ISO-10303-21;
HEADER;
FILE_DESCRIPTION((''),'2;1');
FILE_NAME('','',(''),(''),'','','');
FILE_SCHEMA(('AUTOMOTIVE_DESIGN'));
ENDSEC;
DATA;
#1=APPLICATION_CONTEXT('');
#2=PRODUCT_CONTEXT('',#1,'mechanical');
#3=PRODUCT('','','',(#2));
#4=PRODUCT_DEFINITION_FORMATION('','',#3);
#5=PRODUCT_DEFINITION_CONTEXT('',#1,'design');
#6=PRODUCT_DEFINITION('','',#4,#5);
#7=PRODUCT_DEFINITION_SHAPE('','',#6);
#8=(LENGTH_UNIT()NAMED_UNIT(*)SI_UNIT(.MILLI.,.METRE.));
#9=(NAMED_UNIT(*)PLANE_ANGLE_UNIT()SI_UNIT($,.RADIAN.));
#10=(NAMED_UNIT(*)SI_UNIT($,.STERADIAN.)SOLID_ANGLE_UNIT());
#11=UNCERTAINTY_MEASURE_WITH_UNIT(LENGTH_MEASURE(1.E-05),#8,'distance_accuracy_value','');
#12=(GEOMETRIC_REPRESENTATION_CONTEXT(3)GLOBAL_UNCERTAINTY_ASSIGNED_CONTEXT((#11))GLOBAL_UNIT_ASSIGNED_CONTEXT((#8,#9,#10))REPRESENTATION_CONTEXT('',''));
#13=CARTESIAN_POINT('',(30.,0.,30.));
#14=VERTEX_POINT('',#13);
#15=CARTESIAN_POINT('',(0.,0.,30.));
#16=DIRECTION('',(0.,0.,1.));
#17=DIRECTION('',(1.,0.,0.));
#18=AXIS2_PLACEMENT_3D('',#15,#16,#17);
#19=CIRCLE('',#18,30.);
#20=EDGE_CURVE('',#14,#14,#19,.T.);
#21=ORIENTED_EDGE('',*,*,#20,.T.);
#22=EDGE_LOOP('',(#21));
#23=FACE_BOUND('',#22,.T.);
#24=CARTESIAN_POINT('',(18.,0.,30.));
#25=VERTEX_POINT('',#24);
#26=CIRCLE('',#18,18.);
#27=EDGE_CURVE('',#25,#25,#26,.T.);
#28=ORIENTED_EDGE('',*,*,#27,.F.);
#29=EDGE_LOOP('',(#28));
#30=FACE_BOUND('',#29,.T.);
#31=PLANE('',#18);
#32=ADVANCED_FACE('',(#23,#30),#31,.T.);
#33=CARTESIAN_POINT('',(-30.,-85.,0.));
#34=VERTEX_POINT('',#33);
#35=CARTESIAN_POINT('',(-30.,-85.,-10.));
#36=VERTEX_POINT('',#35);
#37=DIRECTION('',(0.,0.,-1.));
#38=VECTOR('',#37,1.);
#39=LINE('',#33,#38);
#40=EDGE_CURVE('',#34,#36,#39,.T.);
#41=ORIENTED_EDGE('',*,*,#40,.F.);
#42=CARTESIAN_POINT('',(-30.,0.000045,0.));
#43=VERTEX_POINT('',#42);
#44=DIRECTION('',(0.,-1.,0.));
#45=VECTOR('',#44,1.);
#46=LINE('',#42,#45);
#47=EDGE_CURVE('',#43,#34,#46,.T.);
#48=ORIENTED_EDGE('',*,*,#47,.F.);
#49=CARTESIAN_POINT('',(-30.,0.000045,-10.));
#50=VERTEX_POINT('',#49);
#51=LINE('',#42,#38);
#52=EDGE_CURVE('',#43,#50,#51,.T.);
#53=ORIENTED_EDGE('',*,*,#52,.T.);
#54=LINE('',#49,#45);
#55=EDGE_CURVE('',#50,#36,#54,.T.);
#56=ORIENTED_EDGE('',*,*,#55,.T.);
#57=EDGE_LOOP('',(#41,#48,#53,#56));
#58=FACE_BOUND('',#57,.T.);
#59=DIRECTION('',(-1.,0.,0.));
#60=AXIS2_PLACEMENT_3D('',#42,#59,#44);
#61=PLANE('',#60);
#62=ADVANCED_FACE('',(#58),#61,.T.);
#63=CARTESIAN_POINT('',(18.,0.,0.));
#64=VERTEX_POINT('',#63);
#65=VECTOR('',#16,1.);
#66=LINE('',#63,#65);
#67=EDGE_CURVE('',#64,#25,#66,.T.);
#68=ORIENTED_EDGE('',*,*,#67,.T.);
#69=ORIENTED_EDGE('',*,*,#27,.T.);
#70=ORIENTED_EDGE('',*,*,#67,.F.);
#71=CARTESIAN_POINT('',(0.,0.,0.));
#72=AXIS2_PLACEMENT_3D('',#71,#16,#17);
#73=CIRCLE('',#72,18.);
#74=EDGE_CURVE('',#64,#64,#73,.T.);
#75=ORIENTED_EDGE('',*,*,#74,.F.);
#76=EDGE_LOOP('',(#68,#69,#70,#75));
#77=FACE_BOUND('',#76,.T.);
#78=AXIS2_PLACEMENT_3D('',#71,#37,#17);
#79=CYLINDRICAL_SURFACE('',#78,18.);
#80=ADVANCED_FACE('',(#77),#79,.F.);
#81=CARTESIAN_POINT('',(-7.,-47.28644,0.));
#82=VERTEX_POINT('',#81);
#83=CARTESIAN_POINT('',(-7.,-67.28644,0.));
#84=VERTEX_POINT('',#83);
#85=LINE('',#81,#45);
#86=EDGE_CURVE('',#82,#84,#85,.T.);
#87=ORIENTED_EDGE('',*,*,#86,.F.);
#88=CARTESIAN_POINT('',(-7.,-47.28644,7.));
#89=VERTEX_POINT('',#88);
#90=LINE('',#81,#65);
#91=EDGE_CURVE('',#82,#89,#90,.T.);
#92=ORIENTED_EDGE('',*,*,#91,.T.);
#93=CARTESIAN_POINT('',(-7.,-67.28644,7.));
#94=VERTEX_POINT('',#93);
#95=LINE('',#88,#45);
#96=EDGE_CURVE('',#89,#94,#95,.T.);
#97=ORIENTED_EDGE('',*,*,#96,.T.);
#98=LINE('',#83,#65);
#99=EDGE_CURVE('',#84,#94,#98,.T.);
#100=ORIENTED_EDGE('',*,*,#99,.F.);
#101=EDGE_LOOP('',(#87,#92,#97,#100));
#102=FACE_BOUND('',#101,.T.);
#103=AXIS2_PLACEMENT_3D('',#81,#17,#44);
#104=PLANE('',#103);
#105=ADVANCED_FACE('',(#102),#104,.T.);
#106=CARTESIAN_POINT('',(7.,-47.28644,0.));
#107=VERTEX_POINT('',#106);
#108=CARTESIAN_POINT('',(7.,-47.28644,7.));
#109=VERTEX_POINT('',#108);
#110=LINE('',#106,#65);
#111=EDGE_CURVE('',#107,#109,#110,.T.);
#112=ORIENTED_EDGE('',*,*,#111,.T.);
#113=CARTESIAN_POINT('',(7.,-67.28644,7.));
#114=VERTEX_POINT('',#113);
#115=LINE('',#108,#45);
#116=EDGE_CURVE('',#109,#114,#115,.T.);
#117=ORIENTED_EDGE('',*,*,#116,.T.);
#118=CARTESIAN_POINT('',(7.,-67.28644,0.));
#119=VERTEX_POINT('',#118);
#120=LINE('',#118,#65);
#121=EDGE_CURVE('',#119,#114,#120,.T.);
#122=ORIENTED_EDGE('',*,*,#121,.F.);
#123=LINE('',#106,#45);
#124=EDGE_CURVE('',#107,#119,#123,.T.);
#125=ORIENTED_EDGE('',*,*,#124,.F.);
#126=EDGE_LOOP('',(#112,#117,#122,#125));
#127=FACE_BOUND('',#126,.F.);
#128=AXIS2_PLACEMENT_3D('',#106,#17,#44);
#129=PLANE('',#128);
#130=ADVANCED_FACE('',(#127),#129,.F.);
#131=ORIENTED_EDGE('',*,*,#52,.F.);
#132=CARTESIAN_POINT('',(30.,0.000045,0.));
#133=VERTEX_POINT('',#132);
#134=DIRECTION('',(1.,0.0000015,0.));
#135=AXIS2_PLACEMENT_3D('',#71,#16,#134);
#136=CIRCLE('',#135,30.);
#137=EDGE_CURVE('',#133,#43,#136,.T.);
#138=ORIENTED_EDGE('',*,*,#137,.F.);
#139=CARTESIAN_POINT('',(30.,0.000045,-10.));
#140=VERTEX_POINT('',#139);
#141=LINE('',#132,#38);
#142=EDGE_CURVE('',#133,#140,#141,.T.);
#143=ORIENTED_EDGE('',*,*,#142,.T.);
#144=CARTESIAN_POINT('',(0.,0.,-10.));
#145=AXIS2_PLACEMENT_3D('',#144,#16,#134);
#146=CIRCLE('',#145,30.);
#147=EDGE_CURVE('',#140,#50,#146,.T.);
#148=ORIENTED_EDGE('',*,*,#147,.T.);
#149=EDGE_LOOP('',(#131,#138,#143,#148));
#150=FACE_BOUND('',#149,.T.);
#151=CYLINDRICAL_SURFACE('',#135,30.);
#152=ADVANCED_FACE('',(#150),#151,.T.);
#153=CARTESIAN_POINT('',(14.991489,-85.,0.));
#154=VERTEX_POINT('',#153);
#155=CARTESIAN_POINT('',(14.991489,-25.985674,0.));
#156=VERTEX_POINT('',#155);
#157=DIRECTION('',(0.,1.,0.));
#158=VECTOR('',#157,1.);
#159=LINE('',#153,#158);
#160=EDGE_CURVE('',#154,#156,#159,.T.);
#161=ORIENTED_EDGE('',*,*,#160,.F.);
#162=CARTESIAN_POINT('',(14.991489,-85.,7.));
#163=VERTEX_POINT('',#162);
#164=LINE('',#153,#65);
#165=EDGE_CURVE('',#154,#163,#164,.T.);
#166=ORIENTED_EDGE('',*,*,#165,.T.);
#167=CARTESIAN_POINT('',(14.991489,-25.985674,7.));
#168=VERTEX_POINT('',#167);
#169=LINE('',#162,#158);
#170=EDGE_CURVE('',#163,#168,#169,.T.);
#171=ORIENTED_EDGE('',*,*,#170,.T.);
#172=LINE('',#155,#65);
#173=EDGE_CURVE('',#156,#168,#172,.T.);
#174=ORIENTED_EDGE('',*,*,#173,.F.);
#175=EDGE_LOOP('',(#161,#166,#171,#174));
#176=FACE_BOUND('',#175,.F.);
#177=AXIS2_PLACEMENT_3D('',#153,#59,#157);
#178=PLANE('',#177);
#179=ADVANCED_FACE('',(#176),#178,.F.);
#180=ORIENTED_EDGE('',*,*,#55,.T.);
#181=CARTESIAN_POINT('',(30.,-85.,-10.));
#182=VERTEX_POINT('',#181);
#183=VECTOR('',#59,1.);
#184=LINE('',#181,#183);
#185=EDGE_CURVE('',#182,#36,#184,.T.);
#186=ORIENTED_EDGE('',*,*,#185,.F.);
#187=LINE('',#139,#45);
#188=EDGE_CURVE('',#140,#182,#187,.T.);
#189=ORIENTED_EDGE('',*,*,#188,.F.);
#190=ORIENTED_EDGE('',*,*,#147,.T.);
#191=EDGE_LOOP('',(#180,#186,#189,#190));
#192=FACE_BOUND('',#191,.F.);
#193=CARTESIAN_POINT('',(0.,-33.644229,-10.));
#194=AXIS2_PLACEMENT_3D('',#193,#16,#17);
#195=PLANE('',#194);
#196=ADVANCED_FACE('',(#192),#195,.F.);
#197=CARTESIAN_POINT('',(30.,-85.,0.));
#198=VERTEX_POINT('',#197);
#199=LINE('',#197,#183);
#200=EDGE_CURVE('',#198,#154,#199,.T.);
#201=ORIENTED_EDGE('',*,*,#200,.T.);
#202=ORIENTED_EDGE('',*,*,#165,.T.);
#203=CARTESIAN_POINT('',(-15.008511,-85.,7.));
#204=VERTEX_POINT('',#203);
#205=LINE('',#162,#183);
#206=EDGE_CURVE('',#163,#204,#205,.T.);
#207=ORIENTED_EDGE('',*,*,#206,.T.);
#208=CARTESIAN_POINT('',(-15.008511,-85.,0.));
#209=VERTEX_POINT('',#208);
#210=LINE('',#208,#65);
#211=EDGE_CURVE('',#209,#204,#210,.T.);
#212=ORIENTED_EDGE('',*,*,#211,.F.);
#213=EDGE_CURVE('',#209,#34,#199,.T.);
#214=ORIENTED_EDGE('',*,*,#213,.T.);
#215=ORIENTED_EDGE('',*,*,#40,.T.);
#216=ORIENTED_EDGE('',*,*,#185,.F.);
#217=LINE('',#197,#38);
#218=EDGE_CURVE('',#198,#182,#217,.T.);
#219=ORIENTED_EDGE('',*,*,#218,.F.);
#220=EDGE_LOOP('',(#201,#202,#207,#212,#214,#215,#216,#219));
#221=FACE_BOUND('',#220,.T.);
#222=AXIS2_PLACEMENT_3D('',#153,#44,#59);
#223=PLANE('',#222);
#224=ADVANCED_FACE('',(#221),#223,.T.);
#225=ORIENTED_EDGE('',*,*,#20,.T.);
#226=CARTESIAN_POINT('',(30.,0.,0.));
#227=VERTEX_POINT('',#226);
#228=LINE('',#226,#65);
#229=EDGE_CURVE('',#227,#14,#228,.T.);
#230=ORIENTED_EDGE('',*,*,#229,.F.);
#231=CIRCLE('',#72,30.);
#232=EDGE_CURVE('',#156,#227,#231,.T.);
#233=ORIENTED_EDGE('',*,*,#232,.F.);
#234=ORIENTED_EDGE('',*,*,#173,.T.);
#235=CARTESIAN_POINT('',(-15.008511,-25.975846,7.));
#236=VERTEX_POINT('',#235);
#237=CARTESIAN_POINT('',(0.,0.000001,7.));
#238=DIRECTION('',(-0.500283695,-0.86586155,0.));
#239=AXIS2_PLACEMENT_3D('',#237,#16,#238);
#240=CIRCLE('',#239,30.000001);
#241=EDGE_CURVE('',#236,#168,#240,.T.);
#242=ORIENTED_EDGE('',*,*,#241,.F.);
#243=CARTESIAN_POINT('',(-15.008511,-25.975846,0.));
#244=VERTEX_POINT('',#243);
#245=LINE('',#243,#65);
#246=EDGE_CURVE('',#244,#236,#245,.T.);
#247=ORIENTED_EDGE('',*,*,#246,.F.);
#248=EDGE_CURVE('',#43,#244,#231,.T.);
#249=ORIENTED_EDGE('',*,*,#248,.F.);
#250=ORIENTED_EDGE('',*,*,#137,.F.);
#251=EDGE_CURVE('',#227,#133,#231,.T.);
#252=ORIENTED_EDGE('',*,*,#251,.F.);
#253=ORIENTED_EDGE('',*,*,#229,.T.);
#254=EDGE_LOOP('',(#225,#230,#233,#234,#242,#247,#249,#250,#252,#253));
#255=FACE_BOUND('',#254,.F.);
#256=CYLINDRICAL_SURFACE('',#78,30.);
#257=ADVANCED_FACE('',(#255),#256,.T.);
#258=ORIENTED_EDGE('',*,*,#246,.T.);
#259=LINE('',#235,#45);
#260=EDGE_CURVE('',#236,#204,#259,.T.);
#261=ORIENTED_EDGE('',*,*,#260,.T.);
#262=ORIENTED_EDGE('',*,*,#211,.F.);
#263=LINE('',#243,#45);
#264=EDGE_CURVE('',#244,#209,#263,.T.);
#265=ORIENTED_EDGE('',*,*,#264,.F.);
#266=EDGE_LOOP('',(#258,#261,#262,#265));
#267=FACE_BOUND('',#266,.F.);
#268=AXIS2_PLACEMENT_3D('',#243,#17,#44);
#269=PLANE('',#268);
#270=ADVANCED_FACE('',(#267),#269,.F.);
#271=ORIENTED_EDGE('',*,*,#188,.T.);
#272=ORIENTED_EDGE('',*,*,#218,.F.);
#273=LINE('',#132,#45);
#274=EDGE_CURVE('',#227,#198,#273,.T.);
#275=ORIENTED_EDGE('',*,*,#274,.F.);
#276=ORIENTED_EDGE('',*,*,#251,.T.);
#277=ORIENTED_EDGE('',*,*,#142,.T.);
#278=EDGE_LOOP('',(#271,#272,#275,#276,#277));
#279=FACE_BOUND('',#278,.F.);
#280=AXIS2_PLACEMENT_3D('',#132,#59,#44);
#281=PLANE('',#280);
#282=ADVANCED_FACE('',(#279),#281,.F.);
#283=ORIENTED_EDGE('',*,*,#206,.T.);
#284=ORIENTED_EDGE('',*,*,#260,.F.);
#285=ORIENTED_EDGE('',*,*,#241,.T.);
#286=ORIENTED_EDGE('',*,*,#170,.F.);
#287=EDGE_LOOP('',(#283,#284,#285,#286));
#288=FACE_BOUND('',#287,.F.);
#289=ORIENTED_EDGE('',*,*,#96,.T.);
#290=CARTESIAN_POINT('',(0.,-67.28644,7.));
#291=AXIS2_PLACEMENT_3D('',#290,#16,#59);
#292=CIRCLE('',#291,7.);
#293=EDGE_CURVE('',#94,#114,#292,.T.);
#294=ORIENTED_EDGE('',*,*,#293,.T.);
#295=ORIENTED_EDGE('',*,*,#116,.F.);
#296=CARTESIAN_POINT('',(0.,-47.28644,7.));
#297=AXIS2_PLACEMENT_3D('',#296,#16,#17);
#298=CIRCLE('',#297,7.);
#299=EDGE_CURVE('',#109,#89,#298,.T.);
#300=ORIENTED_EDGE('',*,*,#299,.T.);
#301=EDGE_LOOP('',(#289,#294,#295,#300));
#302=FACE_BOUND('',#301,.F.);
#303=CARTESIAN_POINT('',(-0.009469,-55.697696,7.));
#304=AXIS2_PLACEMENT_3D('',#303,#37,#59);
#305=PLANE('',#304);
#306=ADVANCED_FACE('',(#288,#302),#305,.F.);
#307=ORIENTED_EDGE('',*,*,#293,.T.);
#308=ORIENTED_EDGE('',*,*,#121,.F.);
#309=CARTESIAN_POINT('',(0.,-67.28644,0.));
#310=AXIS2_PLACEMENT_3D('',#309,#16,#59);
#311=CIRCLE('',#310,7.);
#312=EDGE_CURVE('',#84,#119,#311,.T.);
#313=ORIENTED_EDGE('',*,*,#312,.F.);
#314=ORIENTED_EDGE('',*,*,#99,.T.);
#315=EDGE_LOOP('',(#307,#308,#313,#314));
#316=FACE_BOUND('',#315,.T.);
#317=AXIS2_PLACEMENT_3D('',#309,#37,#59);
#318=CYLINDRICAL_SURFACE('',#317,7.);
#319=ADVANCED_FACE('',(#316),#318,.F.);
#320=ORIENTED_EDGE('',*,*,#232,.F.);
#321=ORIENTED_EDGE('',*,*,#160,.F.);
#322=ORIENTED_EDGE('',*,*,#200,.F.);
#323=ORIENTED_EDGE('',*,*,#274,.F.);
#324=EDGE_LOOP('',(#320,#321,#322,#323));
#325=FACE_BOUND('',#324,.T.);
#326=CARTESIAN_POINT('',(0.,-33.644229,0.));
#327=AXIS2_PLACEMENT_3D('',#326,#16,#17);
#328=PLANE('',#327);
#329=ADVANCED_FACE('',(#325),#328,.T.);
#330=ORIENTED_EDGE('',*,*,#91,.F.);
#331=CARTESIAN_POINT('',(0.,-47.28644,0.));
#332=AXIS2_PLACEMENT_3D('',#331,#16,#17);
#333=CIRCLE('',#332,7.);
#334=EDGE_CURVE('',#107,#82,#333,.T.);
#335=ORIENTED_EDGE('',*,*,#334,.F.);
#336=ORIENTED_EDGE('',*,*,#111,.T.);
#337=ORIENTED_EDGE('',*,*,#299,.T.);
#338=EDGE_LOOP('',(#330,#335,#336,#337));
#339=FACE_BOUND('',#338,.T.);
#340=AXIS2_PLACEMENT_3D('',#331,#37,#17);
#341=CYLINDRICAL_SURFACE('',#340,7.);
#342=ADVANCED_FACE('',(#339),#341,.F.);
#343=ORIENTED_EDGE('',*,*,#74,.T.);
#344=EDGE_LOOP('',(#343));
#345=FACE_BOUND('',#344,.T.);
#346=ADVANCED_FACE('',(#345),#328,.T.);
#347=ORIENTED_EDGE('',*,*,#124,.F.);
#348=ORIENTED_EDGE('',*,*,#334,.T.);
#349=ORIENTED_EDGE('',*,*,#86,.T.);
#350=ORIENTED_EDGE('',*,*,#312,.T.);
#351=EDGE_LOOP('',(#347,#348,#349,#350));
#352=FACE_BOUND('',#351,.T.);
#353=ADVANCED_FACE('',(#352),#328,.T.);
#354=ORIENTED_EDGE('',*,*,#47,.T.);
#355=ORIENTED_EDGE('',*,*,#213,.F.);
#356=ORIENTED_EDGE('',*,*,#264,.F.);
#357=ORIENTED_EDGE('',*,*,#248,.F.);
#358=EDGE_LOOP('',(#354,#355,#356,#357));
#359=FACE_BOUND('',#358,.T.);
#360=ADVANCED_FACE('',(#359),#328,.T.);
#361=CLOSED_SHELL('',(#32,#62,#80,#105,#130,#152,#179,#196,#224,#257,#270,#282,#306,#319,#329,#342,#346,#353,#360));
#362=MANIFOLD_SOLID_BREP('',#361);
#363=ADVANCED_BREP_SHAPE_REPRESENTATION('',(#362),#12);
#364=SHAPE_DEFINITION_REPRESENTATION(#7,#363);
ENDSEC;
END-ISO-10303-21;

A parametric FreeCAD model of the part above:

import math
import FreeCAD as App
import Part
import Sketcher

doc = App.newDocument("Part")
body = doc.addObject("PartDesign::Body", "Body")

# Sketch on XY plane
sketch1 = body.newObject("Sketcher::SketchObject", "Sketch")
sketch1.AttachmentSupport = (doc.getObject("XY_Plane"), [""])
sketch1.MapMode = "FlatFace"
sketch1.addGeometry([
    Part.Circle(App.Vector(0, 0, 0), App.Vector(0, 0, 1), 30),
    Part.Circle(App.Vector(0, 0, 0), App.Vector(0, 0, 1), 18),
], False)
sketch1.addConstraint([
    Sketcher.Constraint("Coincident", 0, 3, -1, 1),
    Sketcher.Constraint("Coincident", 1, 3, -1, 1),
    Sketcher.Constraint("Diameter", 0, 60.0),
    Sketcher.Constraint("Diameter", 1, 36.0),
])
pad1 = body.newObject("PartDesign::Pad", "Pad")
pad1.Profile = sketch1
pad1.Length = 30

# Sketch on XY plane
sketch2 = body.newObject("Sketcher::SketchObject", "Sketch001")
sketch2.AttachmentSupport = (doc.getObject("XY_Plane"), [""])
sketch2.MapMode = "FlatFace"
sketch2.addGeometry([
    Part.ArcOfCircle(Part.Circle(App.Vector(0, 0, 0), App.Vector(0, 0, 1), 30), math.radians(0.000086), math.radians(179.999914)),
    Part.LineSegment(App.Vector(-30, 0.000045, 0), App.Vector(-30, -85, 0)),
    Part.LineSegment(App.Vector(-30, -85, 0), App.Vector(30, -85, 0)),
    Part.LineSegment(App.Vector(30, -85, 0), App.Vector(30, 0.000045, 0)),
], False)
sketch2.addConstraint([
    Sketcher.Constraint("Coincident", 0, 2, 1, 1),
    Sketcher.Constraint("Coincident", 1, 2, 2, 1),
    Sketcher.Constraint("Coincident", 2, 2, 3, 1),
    Sketcher.Constraint("Coincident", 3, 2, 0, 1),
    Sketcher.Constraint("Vertical", 1),
    Sketcher.Constraint("Horizontal", 2),
    Sketcher.Constraint("Vertical", 3),
    Sketcher.Constraint("Coincident", 0, 3, -1, 1),
    Sketcher.Constraint("Radius", 0, 30.0),
    Sketcher.Constraint("DistanceY", 1, 2, -1, 1, 85.0),
    Sketcher.Constraint("DistanceY", 1, 2, 1, 1, 85.000045),
    Sketcher.Constraint("DistanceY", 3, 1, 3, 2, 85.000045),
])
pad2 = body.newObject("PartDesign::Pad", "Pad001")
pad2.Profile = sketch2
pad2.Length = 10
pad2.Reversed = True

# Sketch on XY plane
sketch3 = body.newObject("Sketcher::SketchObject", "Sketch002")
sketch3.AttachmentSupport = (doc.getObject("XY_Plane"), [""])
sketch3.MapMode = "FlatFace"
sketch3.addGeometry([
    Part.ArcOfCircle(Part.Circle(App.Vector(0, 0, 0), App.Vector(0, 0, 1), 30), math.radians(-120), math.radians(-60)),  # 0
    Part.LineSegment(App.Vector(-15, -26, 0), App.Vector(-15, -85, 0)),  # 1
    Part.LineSegment(App.Vector(-15, -85, 0), App.Vector(15, -85, 0)),  # 2
    Part.LineSegment(App.Vector(15, -85, 0), App.Vector(15, -26, 0)),  # 3
    Part.LineSegment(App.Vector(7, -47, 0), App.Vector(7, -67, 0)),  # 4
    Part.ArcOfCircle(Part.Circle(App.Vector(0, -67, 0), App.Vector(0, 0, 1), 7), math.radians(180), math.radians(360)),  # 5
    Part.LineSegment(App.Vector(-7, -67, 0), App.Vector(-7, -47, 0)),  # 6
    Part.ArcOfCircle(Part.Circle(App.Vector(0, -47, 0), App.Vector(0, 0, 1), 7), math.radians(0), math.radians(180)),  # 7
], False)
sketch3.addConstraint([
    Sketcher.Constraint("Coincident", 0, 1, 1, 1),
    Sketcher.Constraint("Coincident", 1, 2, 2, 1),
    Sketcher.Constraint("Coincident", 2, 2, 3, 1),
    Sketcher.Constraint("Coincident", 3, 2, 0, 2),
    Sketcher.Constraint("Tangent", 4, 2, 5, 2),
    Sketcher.Constraint("Tangent", 5, 1, 6, 1),
    Sketcher.Constraint("Tangent", 6, 2, 7, 2),
    Sketcher.Constraint("Tangent", 7, 1, 4, 1),
    Sketcher.Constraint("Vertical", 1),
    Sketcher.Constraint("Horizontal", 2),
    Sketcher.Constraint("Vertical", 3),
    Sketcher.Constraint("Vertical", 4),
    Sketcher.Constraint("Vertical", 6),
    Sketcher.Constraint("Coincident", 0, 3, -1, 1),
    Sketcher.Constraint("PointOnObject", 5, 3, -2),
    Sketcher.Constraint("Radius", 0, 30.000001),
    Sketcher.Constraint("Radius", 5, 7.0),
    Sketcher.Constraint("DistanceX", 2, 1, 2, 2, 30.0),
    Sketcher.Constraint("DistanceY", 4, 2, 4, 1, 20.0),
    Sketcher.Constraint("DistanceY", 1, 2, -1, 1, 85.0),
    Sketcher.Constraint("DistanceY", 1, 2, 1, 1, 59.024154),
    Sketcher.Constraint("DistanceY", 5, 3, -1, 1, 67.28644),
])
pad3 = body.newObject("PartDesign::Pad", "Pad002")
pad3.Profile = sketch3
pad3.Length = 7

doc.recompute()
